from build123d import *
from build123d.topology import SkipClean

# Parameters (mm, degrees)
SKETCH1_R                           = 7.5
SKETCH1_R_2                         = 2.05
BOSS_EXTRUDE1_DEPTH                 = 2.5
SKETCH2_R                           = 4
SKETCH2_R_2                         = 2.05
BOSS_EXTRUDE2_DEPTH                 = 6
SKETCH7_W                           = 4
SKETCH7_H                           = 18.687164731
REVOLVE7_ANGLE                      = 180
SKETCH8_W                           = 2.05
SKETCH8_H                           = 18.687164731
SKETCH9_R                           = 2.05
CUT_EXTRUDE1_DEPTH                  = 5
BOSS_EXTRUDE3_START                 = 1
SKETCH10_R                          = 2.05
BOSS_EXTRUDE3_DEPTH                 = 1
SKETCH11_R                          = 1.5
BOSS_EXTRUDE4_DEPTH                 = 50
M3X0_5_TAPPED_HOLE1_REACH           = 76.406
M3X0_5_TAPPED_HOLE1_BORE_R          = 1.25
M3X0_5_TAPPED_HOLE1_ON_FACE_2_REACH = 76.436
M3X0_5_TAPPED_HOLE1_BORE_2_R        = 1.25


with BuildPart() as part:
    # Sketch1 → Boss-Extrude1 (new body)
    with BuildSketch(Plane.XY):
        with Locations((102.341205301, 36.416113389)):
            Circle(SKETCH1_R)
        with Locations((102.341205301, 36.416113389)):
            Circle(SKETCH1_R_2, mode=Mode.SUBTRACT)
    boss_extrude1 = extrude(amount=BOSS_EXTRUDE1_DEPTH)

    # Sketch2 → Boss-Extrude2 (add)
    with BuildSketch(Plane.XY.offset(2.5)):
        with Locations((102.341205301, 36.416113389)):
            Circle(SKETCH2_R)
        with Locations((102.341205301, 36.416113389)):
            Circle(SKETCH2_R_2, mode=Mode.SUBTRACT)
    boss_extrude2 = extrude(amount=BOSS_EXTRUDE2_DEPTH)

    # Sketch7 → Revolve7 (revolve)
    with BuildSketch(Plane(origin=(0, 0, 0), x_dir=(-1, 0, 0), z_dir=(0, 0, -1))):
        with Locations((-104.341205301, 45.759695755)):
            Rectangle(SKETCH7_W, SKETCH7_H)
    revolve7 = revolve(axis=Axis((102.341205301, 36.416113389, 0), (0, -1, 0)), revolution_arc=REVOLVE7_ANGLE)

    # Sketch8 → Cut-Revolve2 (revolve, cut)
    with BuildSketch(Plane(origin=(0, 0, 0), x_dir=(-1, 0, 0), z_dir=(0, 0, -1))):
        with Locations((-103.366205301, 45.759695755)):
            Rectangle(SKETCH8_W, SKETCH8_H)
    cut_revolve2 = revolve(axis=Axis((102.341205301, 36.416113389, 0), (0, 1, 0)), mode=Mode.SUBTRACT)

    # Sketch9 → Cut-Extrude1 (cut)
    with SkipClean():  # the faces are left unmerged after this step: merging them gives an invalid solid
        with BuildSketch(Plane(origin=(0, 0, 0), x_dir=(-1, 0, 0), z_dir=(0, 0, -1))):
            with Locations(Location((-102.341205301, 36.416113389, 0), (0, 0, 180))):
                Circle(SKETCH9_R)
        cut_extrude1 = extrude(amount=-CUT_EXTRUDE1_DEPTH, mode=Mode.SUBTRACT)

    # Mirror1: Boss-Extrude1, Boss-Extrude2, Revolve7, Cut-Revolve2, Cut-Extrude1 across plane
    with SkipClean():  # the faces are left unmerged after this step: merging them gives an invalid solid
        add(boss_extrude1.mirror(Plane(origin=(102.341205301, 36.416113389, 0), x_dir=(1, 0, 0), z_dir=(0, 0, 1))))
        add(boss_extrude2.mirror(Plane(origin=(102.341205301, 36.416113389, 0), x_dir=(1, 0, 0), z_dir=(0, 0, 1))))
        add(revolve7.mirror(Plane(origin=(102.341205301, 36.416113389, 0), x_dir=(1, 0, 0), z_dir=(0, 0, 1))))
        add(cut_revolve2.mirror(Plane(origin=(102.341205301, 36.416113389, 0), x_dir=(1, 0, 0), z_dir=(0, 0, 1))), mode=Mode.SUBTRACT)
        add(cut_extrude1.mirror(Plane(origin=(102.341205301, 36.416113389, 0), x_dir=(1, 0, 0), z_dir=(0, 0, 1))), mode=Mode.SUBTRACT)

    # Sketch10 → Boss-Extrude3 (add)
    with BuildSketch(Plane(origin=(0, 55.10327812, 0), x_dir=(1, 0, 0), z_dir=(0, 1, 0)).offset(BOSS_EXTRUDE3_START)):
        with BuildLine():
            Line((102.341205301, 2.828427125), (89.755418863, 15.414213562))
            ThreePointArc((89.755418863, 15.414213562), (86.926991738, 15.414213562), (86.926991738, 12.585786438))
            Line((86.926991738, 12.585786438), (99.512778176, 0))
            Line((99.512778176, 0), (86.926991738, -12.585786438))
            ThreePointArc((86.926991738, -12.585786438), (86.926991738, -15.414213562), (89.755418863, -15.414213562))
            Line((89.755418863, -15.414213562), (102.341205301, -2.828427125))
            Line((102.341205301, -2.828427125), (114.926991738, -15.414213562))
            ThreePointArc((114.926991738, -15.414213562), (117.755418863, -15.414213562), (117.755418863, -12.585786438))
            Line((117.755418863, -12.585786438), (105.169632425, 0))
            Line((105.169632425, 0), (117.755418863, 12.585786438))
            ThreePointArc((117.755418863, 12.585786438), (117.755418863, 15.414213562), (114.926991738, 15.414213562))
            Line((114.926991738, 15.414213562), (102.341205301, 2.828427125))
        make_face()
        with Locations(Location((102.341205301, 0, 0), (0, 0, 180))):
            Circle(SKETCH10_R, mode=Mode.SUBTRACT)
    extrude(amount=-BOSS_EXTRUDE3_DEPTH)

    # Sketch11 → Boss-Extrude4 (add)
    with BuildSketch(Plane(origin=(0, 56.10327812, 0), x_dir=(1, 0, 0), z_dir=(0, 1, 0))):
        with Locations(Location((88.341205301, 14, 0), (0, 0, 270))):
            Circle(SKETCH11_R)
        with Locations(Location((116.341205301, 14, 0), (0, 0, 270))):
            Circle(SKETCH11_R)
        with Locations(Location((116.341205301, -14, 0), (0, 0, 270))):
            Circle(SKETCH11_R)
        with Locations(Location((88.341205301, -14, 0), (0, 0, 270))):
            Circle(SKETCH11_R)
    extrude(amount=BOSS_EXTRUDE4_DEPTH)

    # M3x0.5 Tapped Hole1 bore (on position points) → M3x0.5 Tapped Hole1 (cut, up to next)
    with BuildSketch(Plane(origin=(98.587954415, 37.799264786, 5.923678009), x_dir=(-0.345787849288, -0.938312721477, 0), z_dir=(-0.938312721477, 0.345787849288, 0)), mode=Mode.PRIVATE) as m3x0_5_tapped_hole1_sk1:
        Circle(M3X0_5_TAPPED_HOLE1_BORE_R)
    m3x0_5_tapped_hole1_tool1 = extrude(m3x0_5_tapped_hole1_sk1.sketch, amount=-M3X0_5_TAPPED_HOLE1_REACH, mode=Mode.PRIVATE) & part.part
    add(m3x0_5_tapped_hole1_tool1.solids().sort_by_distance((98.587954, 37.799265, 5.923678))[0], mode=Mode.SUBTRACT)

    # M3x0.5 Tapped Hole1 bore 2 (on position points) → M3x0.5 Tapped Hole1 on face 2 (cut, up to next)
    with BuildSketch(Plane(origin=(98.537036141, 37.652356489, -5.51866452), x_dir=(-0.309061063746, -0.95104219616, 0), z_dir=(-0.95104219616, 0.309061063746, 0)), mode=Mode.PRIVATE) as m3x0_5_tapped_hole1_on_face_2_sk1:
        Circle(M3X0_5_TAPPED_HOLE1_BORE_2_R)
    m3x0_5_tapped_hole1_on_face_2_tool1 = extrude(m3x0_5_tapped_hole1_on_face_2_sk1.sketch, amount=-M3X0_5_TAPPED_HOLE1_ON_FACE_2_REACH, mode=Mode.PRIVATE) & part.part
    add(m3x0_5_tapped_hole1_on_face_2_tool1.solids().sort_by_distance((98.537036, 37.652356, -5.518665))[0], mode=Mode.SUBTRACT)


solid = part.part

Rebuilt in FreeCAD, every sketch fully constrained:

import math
import FreeCAD as App
import Part
import Sketcher


def add_polygon(sketch, points):
    """Adds a closed chain of lines whose ends are joined by coincident constraints."""
    first, n = sketch.GeometryCount, len(points)
    for a, b in zip(points, points[1:] + points[:1]):
        sketch.addGeometry(Part.LineSegment(App.Vector(*a, 0), App.Vector(*b, 0)), False)
    for i in range(n):
        sketch.addConstraint(Sketcher.Constraint("Coincident", first + i, 2, first + (i + 1) % n, 1))

doc = App.newDocument("Part")
body = doc.addObject("PartDesign::Body", "Body")

# Sketch on XY plane
sketch1 = body.newObject("Sketcher::SketchObject", "Sketch")
sketch1.AttachmentSupport = (doc.getObject("XY_Plane"), [""])
sketch1.MapMode = "FlatFace"
sketch1.addGeometry([
    Part.Circle(App.Vector(102.341205, 36.416113, 0), App.Vector(0, 0, 1), 7.5),
    Part.Circle(App.Vector(102.341205, 36.416113, 0), App.Vector(0, 0, 1), 2.05),
], False)
sketch1.addConstraint([
    Sketcher.Constraint("Coincident", 1, 3, 0, 3),
    Sketcher.Constraint("Diameter", 0, 15.0),
    Sketcher.Constraint("Diameter", 1, 4.1),
    Sketcher.Constraint("DistanceX", -1, 1, 0, 3, 102.341205),
    Sketcher.Constraint("DistanceY", -1, 1, 0, 3, 36.416113),
])
pad1 = body.newObject("PartDesign::Pad", "Pad")
pad1.Profile = sketch1
pad1.Length = 2.5

# Sketch on XY plane
sketch2 = body.newObject("Sketcher::SketchObject", "Sketch001")
sketch2.AttachmentSupport = (doc.getObject("XY_Plane"), [""])
sketch2.MapMode = "FlatFace"
sketch2.AttachmentOffset = App.Placement(App.Vector(0, 0, 2.5), App.Rotation())
sketch2.addGeometry([
    Part.Circle(App.Vector(102.341205, 36.416113, 0), App.Vector(0, 0, 1), 4),
    Part.Circle(App.Vector(102.341205, 36.416113, 0), App.Vector(0, 0, 1), 2.05),
], False)
sketch2.addConstraint([
    Sketcher.Constraint("Coincident", 1, 3, 0, 3),
    Sketcher.Constraint("Diameter", 0, 8.0),
    Sketcher.Constraint("Diameter", 1, 4.1),
    Sketcher.Constraint("DistanceX", -1, 1, 0, 3, 102.341205),
    Sketcher.Constraint("DistanceY", -1, 1, 0, 3, 36.416113),
])
pad2 = body.newObject("PartDesign::Pad", "Pad001")
pad2.Profile = sketch2
pad2.Length = 6

# Sketch on XY plane
sketch3 = body.newObject("Sketcher::SketchObject", "Sketch002")
sketch3.AttachmentSupport = (doc.getObject("XY_Plane"), [""])
sketch3.MapMode = "FlatFace"
add_polygon(sketch3, [(106.341205, 55.103278), (106.341205, 36.416113), (102.341205, 36.416113), (102.341205, 55.103278)])  # lines 0-3
sketch3.addGeometry(Part.LineSegment(App.Vector(102.341205, 55.103278, 0), App.Vector(102.341205, 36.416113, 0)), True)  # axis
sketch3.addConstraint([
    Sketcher.Constraint("Vertical", 0),
    Sketcher.Constraint("Horizontal", 1),
    Sketcher.Constraint("Vertical", 2),
    Sketcher.Constraint("Horizontal", 3),
    Sketcher.Constraint("Vertical", 4),
    Sketcher.Constraint("Coincident", 4, 1, 2, 2),
    Sketcher.Constraint("Horizontal", 0, 2, 4, 2),
    Sketcher.Constraint("DistanceX", 1, 2, 1, 1, 4.0),
    Sketcher.Constraint("DistanceY", 0, 2, 0, 1, 18.687165),
    Sketcher.Constraint("DistanceY", -1, 1, 2, 2, 55.103278),
    Sketcher.Constraint("DistanceX", -1, 1, 0, 2, 106.341205),
])
revolution = body.newObject("PartDesign::Revolution", "Revolution")
revolution.Profile = sketch3
revolution.ReferenceAxis = (sketch3, ["Axis0"])
revolution.Angle = 180

# Sketch on XY plane
sketch4 = body.newObject("Sketcher::SketchObject", "Sketch003")
sketch4.AttachmentSupport = (doc.getObject("XY_Plane"), [""])
sketch4.MapMode = "FlatFace"
add_polygon(sketch4, [(104.391205, 55.103278), (104.391205, 36.416113), (102.341205, 36.416113), (102.341205, 55.103278)])  # lines 0-3
sketch4.addGeometry(Part.LineSegment(App.Vector(102.341205, 36.416113, 0), App.Vector(102.341205, 55.103278, 0)), True)  # axis
sketch4.addConstraint([
    Sketcher.Constraint("Vertical", 0),
    Sketcher.Constraint("Horizontal", 1),
    Sketcher.Constraint("Vertical", 2),
    Sketcher.Constraint("Horizontal", 3),
    Sketcher.Constraint("Vertical", 4),
    Sketcher.Constraint("Coincident", 4, 1, 1, 2),
    Sketcher.Constraint("Horizontal", 3, 2, 4, 2),
    Sketcher.Constraint("DistanceX", 1, 2, 1, 1, 2.05),
    Sketcher.Constraint("DistanceY", 0, 2, 0, 1, 18.687165),
    Sketcher.Constraint("DistanceY", -1, 1, 2, 2, 55.103278),
    Sketcher.Constraint("DistanceX", -1, 1, 0, 2, 104.391205),
])
groove = body.newObject("PartDesign::Groove", "Groove")
groove.Profile = sketch4
groove.ReferenceAxis = (sketch4, ["Axis0"])
groove.Angle = 360

# Sketch on XY plane
sketch5 = body.newObject("Sketcher::SketchObject", "Sketch004")
sketch5.AttachmentSupport = (doc.getObject("XY_Plane"), [""])
sketch5.MapMode = "FlatFace"
sketch5.addGeometry(Part.Circle(App.Vector(102.341205, 36.416113, 0), App.Vector(0, 0, 1), 2.05), False)
sketch5.addConstraint([
    Sketcher.Constraint("Diameter", 0, 4.1),
    Sketcher.Constraint("DistanceX", -1, 1, 0, 3, 102.341205),
    Sketcher.Constraint("DistanceY", -1, 1, 0, 3, 36.416113),
])
pocket1 = body.newObject("PartDesign::Pocket", "Pocket")
pocket1.Profile = sketch5
pocket1.Length = 5
pocket1.Reversed = True
doc.recompute()

mirrored = body.newObject("PartDesign::Mirrored", "Mirrored")
mirrored.Originals = [pad1, pad2, revolution, groove, pocket1]
mirrored.MirrorPlane = (doc.getObject("XY_Plane"), [""])
body.Tip = mirrored

# Sketch on XZ plane
sketch6 = body.newObject("Sketcher::SketchObject", "Sketch005")
sketch6.AttachmentSupport = (doc.getObject("XZ_Plane"), [""])
sketch6.MapMode = "FlatFace"
sketch6.AttachmentOffset = App.Placement(App.Vector(0, 0, -56.103278), App.Rotation())
sketch6.addGeometry([
    Part.LineSegment(App.Vector(102.341205, -2.828427, 0), App.Vector(89.755419, -15.414214, 0)),  # 0
    Part.ArcOfCircle(Part.Circle(App.Vector(88.341205, -14, 0), App.Vector(0, 0, 1), 2), math.radians(135), math.radians(315)),  # 1
    Part.LineSegment(App.Vector(86.926992, -12.585786, 0), App.Vector(99.512778, 0, 0)),  # 2
    Part.LineSegment(App.Vector(99.512778, 0, 0), App.Vector(86.926992, 12.585786, 0)),  # 3
    Part.ArcOfCircle(Part.Circle(App.Vector(88.341205, 14, 0), App.Vector(0, 0, 1), 2), math.radians(45), math.radians(225)),  # 4
    Part.LineSegment(App.Vector(89.755419, 15.414214, 0), App.Vector(102.341205, 2.828427, 0)),  # 5
    Part.LineSegment(App.Vector(102.341205, 2.828427, 0), App.Vector(114.926992, 15.414214, 0)),  # 6
    Part.ArcOfCircle(Part.Circle(App.Vector(116.341205, 14, 0), App.Vector(0, 0, 1), 2), math.radians(-45), math.radians(135)),  # 7
    Part.LineSegment(App.Vector(117.755419, 12.585786, 0), App.Vector(105.169632, 0, 0)),  # 8
    Part.LineSegment(App.Vector(105.169632, 0, 0), App.Vector(117.755419, -12.585786, 0)),  # 9
    Part.ArcOfCircle(Part.Circle(App.Vector(116.341205, -14, 0), App.Vector(0, 0, 1), 2), math.radians(-135), math.radians(45)),  # 10
    Part.LineSegment(App.Vector(114.926992, -15.414214, 0), App.Vector(102.341205, -2.828427, 0)),  # 11
    Part.Circle(App.Vector(102.341205, 0, 0), App.Vector(0, 0, 1), 2.05),  # 12
], False)
sketch6.addConstraint([
    Sketcher.Constraint("Tangent", 0, 2, 1, 2),
    Sketcher.Constraint("Tangent", 1, 1, 2, 1),
    Sketcher.Constraint("Coincident", 2, 2, 3, 1),
    Sketcher.Constraint("Tangent", 3, 2, 4, 2),
    Sketcher.Constraint("Tangent", 4, 1, 5, 1),
    Sketcher.Constraint("Coincident", 5, 2, 6, 1),
    Sketcher.Constraint("Tangent", 6, 2, 7, 2),
    Sketcher.Constraint("Tangent", 7, 1, 8, 1),
    Sketcher.Constraint("Coincident", 8, 2, 9, 1),
    Sketcher.Constraint("Tangent", 9, 2, 10, 2),
    Sketcher.Constraint("Tangent", 10, 1, 11, 1),
    Sketcher.Constraint("Coincident", 11, 2, 0, 1),
    Sketcher.Constraint("Equal", 1, 4),
    Sketcher.Constraint("Equal", 4, 7),
    Sketcher.Constraint("Equal", 7, 10),
    Sketcher.Constraint("Symmetric", 1, 3, 4, 3, -1),
    Sketcher.Constraint("Symmetric", 7, 3, 10, 3, -1),
    Sketcher.Constraint("Symmetric", 5, 2, 11, 2, -1),
    Sketcher.Constraint("PointOnObject", 12, 3, -1),
    Sketcher.Constraint("PointOnObject", 2, 2, -1),
    Sketcher.Constraint("PointOnObject", 8, 2, -1),
    Sketcher.Constraint("Parallel", 0, 2),
    Sketcher.Constraint("Perpendicular", 2, 3),
    Sketcher.Constraint("Perpendicular", 5, 6),
    Sketcher.Constraint("Parallel", 6, 8),
    Sketcher.Constraint("Horizontal", 4, 3, 7, 3),
    Sketcher.Constraint("Vertical", 12, 3, 5, 2),
    Sketcher.Constraint("Equal", 0, 2),
    Sketcher.Constraint("Radius", 1, 2.0),
    Sketcher.Constraint("Diameter", 12, 4.1),
    Sketcher.Constraint("DistanceY", 1, 3, -1, 1, 14.0),
    Sketcher.Constraint("DistanceX", -1, 1, 0, 2, 89.755419),
])
pad3 = body.newObject("PartDesign::Pad", "Pad002")
pad3.Profile = sketch6
pad3.Length = 1

# Sketch on XZ plane
sketch7 = body.newObject("Sketcher::SketchObject", "Sketch006")
sketch7.AttachmentSupport = (doc.getObject("XZ_Plane"), [""])
sketch7.MapMode = "FlatFace"
sketch7.AttachmentOffset = App.Placement(App.Vector(0, 0, -56.103278), App.Rotation())
sketch7.addGeometry([
    Part.Circle(App.Vector(88.341205, -14, 0), App.Vector(0, 0, 1), 1.5),
    Part.Circle(App.Vector(116.341205, -14, 0), App.Vector(0, 0, 1), 1.5),
    Part.Circle(App.Vector(116.341205, 14, 0), App.Vector(0, 0, 1), 1.5),
    Part.Circle(App.Vector(88.341205, 14, 0), App.Vector(0, 0, 1), 1.5),
], False)
sketch7.addConstraint([
    Sketcher.Constraint("Equal", 0, 1),
    Sketcher.Constraint("Equal", 1, 2),
    Sketcher.Constraint("Equal", 2, 3),
    Sketcher.Constraint("Symmetric", 1, 3, 2, 3, -1),
    Sketcher.Constraint("Symmetric", 0, 3, 3, 3, -1),
    Sketcher.Constraint("Horizontal", 0, 3, 1, 3),
    Sketcher.Constraint("Diameter", 0, 3.0),
    Sketcher.Constraint("DistanceY", 0, 3, -1, 1, 14.0),
    Sketcher.Constraint("DistanceX", 0, 3, 1, 3, 28.0),
    Sketcher.Constraint("DistanceX", -1, 1, 0, 3, 88.341205),
])
pad4 = body.newObject("PartDesign::Pad", "Pad003")
pad4.Profile = sketch7
pad4.Length = 50
pad4.Reversed = True

# Sketch on an angled plane
sketch8 = body.newObject("Sketcher::SketchObject", "Sketch007")
sketch8.Placement = App.Placement(App.Vector(98.587954, 37.799265, 5.923678), App.Rotation(App.Vector(-0.345787849, -0.938312721, 0), App.Vector(0, 0, 0.999999999), App.Vector(-0.938312721, 0.345787849, 0), "ZXY"))
sketch8.addGeometry(Part.Circle(App.Vector(0, 0, 0), App.Vector(0, 0, 1), 1.25), False)
sketch8.addConstraint([
    Sketcher.Constraint("Coincident", 0, 3, -1, 1),
    Sketcher.Constraint("Diameter", 0, 2.5),
])
pocket2 = body.newObject("PartDesign::Pocket", "Pocket001")
pocket2.Profile = sketch8
pocket2.Type = "UpToFirst"

# Sketch on an angled plane
sketch9 = body.newObject("Sketcher::SketchObject", "Sketch008")
sketch9.Placement = App.Placement(App.Vector(98.537036, 37.652356, -5.518665), App.Rotation(App.Vector(-0.309061064, -0.951042196, 0), App.Vector(0, 0, 1), App.Vector(-0.951042196, 0.309061064, 0), "ZXY"))
sketch9.addGeometry(Part.Circle(App.Vector(0, 0, 0), App.Vector(0, 0, 1), 1.25), False)
sketch9.addConstraint([
    Sketcher.Constraint("Coincident", 0, 3, -1, 1),
    Sketcher.Constraint("Diameter", 0, 2.5),
])
pocket3 = body.newObject("PartDesign::Pocket", "Pocket002")
pocket3.Profile = sketch9
pocket3.Type = "UpToFirst"

doc.recompute()
